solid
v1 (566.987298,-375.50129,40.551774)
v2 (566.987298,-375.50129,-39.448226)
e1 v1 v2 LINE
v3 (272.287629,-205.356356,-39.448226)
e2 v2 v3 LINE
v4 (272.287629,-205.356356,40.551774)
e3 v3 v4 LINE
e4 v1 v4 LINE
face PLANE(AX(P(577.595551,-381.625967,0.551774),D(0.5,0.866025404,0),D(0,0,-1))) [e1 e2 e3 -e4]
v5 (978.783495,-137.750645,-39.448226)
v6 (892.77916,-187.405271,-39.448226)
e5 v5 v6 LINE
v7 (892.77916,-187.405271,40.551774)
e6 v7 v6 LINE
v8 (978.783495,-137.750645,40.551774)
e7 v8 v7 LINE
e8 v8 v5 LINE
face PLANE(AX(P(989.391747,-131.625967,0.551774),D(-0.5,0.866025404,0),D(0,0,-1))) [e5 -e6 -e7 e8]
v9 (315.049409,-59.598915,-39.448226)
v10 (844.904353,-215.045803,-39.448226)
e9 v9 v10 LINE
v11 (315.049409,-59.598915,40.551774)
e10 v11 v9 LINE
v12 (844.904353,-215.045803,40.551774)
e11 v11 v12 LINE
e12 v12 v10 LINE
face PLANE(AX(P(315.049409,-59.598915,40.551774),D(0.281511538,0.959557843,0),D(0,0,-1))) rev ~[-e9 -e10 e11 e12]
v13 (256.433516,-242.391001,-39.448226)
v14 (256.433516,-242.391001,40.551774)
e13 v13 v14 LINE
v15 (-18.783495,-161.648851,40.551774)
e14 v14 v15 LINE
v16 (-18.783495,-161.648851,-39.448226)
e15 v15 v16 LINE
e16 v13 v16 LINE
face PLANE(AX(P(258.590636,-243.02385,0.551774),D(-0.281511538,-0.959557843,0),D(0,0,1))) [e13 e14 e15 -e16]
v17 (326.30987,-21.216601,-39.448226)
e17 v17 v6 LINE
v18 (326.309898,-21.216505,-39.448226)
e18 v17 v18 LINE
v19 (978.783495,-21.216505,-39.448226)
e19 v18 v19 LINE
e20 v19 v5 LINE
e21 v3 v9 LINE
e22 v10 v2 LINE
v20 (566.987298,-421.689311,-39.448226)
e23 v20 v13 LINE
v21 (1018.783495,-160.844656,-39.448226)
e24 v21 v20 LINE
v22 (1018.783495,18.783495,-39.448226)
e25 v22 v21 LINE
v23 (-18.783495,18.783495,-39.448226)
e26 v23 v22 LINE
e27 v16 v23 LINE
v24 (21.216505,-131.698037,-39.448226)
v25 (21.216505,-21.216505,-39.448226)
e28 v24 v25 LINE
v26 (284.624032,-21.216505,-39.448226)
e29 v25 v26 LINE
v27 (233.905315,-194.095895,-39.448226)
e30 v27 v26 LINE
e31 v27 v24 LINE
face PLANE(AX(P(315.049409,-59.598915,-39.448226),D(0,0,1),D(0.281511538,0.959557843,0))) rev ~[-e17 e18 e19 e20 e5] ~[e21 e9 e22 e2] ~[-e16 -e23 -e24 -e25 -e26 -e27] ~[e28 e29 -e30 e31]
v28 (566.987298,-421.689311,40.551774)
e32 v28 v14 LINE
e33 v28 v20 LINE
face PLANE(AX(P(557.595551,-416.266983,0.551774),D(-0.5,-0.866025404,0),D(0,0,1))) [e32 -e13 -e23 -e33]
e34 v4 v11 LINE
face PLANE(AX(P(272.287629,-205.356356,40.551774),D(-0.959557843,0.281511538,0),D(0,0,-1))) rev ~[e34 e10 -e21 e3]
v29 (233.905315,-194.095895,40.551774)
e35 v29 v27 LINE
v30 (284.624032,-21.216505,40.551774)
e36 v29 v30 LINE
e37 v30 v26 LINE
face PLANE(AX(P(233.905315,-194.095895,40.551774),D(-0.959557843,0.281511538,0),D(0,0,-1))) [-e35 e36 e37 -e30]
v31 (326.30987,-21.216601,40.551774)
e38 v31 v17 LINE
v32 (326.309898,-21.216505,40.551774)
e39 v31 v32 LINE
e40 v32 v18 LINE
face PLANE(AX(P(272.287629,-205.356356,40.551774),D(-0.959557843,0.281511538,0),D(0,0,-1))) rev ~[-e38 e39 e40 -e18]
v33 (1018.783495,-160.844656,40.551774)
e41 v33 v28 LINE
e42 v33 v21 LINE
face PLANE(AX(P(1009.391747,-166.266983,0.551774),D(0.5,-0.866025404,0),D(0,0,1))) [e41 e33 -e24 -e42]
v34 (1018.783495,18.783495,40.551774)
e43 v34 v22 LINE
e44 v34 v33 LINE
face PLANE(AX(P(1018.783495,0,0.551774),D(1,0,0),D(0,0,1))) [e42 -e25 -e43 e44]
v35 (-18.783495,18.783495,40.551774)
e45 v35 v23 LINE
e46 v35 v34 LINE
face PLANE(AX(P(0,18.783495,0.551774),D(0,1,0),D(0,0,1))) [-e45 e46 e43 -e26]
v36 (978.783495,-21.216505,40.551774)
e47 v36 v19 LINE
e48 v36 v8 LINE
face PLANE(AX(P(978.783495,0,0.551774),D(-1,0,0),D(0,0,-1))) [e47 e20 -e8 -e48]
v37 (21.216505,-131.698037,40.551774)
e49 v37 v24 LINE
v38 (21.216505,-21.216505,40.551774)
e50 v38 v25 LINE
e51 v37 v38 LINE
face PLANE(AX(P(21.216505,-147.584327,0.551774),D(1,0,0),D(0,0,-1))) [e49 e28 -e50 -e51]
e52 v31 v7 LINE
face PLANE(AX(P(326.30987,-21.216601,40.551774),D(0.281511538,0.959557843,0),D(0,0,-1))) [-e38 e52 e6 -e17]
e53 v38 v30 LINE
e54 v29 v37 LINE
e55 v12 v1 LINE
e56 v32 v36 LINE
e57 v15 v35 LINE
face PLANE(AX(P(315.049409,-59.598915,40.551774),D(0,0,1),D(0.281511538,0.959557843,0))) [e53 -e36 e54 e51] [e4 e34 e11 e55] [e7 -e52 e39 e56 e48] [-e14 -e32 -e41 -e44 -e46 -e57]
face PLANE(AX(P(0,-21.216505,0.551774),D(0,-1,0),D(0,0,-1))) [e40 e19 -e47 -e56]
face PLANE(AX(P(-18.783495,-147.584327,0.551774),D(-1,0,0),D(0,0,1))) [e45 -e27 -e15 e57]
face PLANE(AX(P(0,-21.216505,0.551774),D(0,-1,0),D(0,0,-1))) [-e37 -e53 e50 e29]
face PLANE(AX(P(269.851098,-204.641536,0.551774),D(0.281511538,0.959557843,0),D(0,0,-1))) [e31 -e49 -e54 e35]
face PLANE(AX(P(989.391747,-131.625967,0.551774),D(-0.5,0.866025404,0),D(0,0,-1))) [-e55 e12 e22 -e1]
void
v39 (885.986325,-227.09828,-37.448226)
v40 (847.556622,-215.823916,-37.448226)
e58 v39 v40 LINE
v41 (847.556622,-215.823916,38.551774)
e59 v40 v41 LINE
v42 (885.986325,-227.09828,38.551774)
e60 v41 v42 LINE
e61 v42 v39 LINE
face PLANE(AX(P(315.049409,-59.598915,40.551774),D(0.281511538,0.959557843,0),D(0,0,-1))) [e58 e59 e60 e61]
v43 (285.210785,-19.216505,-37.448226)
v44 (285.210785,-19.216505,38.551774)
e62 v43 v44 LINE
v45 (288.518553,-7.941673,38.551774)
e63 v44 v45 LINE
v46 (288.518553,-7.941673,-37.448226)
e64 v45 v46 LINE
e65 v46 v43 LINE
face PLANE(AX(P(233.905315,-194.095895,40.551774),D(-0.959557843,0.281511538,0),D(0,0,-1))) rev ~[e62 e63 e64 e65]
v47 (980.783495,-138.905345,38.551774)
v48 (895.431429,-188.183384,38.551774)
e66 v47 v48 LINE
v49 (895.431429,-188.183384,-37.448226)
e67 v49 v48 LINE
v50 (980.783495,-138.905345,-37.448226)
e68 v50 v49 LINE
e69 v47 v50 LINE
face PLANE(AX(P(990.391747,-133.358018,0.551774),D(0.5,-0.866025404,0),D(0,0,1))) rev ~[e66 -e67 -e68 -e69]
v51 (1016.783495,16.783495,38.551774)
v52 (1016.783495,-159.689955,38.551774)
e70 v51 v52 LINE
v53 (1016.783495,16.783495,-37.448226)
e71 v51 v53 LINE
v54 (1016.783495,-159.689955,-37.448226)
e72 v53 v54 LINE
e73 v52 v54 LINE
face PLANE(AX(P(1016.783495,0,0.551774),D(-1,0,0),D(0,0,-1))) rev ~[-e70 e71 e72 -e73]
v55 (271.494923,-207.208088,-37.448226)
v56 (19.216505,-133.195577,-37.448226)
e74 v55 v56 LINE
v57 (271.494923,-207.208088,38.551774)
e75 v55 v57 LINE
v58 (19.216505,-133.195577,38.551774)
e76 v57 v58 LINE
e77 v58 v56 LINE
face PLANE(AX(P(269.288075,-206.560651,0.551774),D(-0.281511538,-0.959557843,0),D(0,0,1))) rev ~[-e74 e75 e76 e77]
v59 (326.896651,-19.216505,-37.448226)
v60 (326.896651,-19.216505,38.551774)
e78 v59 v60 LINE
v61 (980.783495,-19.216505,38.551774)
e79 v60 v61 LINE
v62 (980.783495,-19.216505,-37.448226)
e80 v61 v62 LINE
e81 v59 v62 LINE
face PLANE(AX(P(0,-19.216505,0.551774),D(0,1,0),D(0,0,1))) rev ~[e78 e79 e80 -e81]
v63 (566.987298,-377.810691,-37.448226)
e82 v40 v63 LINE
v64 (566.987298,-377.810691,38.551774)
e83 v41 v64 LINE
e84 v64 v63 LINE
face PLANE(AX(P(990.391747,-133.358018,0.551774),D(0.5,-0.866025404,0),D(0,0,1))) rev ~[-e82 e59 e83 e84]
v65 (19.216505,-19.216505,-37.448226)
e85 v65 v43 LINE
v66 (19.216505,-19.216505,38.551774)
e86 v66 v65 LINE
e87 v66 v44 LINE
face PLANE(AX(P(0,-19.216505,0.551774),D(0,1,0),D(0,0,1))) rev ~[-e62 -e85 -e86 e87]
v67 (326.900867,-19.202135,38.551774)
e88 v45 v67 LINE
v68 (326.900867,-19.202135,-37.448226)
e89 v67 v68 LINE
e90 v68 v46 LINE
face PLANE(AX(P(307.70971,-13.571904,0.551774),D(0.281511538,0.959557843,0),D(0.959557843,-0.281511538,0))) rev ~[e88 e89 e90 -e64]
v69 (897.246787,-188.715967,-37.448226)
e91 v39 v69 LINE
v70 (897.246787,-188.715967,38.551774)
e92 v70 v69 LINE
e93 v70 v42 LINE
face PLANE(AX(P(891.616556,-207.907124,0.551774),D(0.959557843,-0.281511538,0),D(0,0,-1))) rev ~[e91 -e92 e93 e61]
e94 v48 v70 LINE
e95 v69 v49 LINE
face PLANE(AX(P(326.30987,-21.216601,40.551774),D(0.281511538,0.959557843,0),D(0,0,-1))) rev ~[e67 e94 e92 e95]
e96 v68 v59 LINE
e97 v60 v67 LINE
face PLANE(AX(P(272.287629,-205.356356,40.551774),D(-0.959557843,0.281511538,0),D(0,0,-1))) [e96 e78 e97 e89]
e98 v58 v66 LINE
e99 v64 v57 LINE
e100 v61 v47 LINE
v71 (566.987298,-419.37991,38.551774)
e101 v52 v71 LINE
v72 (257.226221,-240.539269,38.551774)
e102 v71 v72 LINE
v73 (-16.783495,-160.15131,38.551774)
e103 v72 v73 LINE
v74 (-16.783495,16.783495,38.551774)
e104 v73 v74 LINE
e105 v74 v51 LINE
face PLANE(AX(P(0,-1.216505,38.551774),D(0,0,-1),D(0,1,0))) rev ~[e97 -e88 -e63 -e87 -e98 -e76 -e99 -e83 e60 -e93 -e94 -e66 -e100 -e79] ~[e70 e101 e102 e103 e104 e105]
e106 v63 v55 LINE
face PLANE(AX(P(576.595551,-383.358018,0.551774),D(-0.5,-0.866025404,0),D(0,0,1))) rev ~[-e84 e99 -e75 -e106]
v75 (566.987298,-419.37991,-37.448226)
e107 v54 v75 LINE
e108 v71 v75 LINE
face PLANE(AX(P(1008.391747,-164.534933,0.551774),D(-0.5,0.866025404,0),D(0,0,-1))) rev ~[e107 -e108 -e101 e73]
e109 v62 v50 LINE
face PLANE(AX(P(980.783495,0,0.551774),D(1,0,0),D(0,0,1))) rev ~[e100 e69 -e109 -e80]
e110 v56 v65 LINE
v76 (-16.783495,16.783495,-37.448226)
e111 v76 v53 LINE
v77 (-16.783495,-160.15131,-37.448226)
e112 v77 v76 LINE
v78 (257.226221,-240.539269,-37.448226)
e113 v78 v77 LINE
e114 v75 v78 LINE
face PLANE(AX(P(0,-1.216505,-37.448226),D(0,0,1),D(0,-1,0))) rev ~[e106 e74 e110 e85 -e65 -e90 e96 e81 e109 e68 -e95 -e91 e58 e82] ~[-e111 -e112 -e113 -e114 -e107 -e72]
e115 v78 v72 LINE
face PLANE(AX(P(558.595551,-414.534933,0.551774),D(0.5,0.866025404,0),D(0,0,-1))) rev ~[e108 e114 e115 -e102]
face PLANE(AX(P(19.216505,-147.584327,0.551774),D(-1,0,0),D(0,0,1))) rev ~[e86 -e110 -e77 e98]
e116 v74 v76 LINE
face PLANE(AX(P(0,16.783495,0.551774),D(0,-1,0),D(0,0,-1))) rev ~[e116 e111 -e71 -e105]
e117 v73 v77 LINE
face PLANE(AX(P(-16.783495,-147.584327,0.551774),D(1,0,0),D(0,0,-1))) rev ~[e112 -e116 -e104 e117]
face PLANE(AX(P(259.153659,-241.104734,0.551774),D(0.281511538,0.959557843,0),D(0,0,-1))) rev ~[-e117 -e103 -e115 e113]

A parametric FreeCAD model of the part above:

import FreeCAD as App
import Part
import Sketcher
from FreeCAD import Vector
Q = App.Units.Quantity


def add_polygon(sketch, points):
    """Adds a closed chain of lines whose ends are joined by coincident constraints."""
    first, n = sketch.GeometryCount, len(points)
    for a, b in zip(points, points[1:] + points[:1]):
        sketch.addGeometry(Part.LineSegment(App.Vector(*a, 0), App.Vector(*b, 0)), False)
    for i in range(n):
        sketch.addConstraint(Sketcher.Constraint("Coincident", first + i, 2, first + (i + 1) % n, 1))

doc = App.newDocument("Part")
body = doc.addObject("PartDesign::Body", "Body")

# Sketch on YZ plane
sketch1 = doc.addObject("Sketcher::SketchObject", "Sketch")
body.addObject(sketch1)
sketch1.AttachmentSupport = (doc.YZ_Plane, [""])
sketch1.MapMode = "FlatFace"
add_polygon(sketch1, [(19, 41), (-21, 41), (-21, -39), (19, -39)])  # lines 0-3
add_polygon(sketch1, [(-19, -37), (-19, 39), (17, 39), (17, -37)])  # lines 4-7
sketch1.addConstraint(Sketcher.Constraint("Horizontal", 0))
sketch1.addConstraint(Sketcher.Constraint("Vertical", 1))
sketch1.addConstraint(Sketcher.Constraint("Horizontal", 2))
sketch1.addConstraint(Sketcher.Constraint("Vertical", 3))
sketch1.addConstraint(Sketcher.Constraint("Vertical", 4))
sketch1.addConstraint(Sketcher.Constraint("Horizontal", 5))
sketch1.addConstraint(Sketcher.Constraint("Vertical", 6))
sketch1.addConstraint(Sketcher.Constraint("Horizontal", 7))
sketch1.addConstraint(Sketcher.Constraint("DistanceX", 0, 2, 0, 1, Q("40 mm")))
sketch1.addConstraint(Sketcher.Constraint("DistanceX", 5, 1, 5, 2, Q("36 mm")))
sketch1.addConstraint(Sketcher.Constraint("DistanceY", 1, 2, 1, 1, Q("80 mm")))
sketch1.addConstraint(Sketcher.Constraint("DistanceY", 4, 1, 4, 2, Q("76 mm")))
sketch1.addConstraint(Sketcher.Constraint("DistanceX", 0, 2, 4, 2, Q("2 mm")))
sketch1.addConstraint(Sketcher.Constraint("DistanceY", 4, 2, 0, 2, Q("2 mm")))
sketch1.addConstraint(Sketcher.Constraint("DistanceX", 0, 2, -1, 1, Q("21.216505 mm")))
sketch1.addConstraint(Sketcher.Constraint("DistanceY", -1, 1, 0, 2, Q("40.551774 mm")))

# Sketch on XY plane
sketch2 = doc.addObject("Sketcher::SketchObject", "Sketch001")
body.addObject(sketch2)
sketch2.AttachmentSupport = (doc.XY_Plane, [""])
sketch2.MapMode = "FlatFace"
add_polygon(sketch2, [(0, 0), (1000, 0), (1000, -150), (567, -400), (264, -225), (0, -148)])  # lines 0-5
sketch2.addConstraint(Sketcher.Constraint("Horizontal", 0))
sketch2.addConstraint(Sketcher.Constraint("Vertical", 1))
sketch2.addConstraint(Sketcher.Constraint("Vertical", 5))
sketch2.addConstraint(Sketcher.Constraint("Coincident", 5, 2, -1, 1))
sketch2.addConstraint(Sketcher.Constraint("DistanceX", 0, 1, 0, 2, Q("1000 mm")))
sketch2.addConstraint(Sketcher.Constraint("DistanceY", 1, 2, 1, 1, Q("150 mm")))
sketch2.addConstraint(Sketcher.Constraint("Angle", 2, Q("-150 deg")))
sketch2.addConstraint(Sketcher.Constraint("Angle", 3, Q("150 deg")))
sketch2.addConstraint(Sketcher.Constraint("Distance", 2, Q("500 mm")))
sketch2.addConstraint(Sketcher.Constraint("Distance", 3, Q("350 mm")))
sketch2.addConstraint(Sketcher.Constraint("Distance", 4, Q("275 mm")))
doc.recompute()

additivepipe = doc.addObject("PartDesign::AdditivePipe", "AdditivePipe")
body.addObject(additivepipe)
additivepipe.Profile = sketch1
additivepipe.Spine = (sketch2, ["Edge1", "Edge2", "Edge3", "Edge4", "Edge5", "Edge6"])
additivepipe.Transition = "Right corner"

# Sketch on an angled plane
sketch3 = doc.addObject("Sketcher::SketchObject", "Sketch002")
body.addObject(sketch3)
sketch3.Placement = App.Placement(Vector(-33.893762, -115.52999, 0), App.Rotation(Vector(0.959557843, -0.281511538, 0), Vector(0, 0, -1), Vector(0.281511538, 0.959557843, 0), "ZXY"))
add_polygon(sketch3, [(279, 39), (279, -41), (319, -41), (319, 39)])  # lines 0-3
sketch3.addConstraint(Sketcher.Constraint("Vertical", 0))
sketch3.addConstraint(Sketcher.Constraint("Horizontal", 1))
sketch3.addConstraint(Sketcher.Constraint("Vertical", 2))
sketch3.addConstraint(Sketcher.Constraint("Horizontal", 3))
sketch3.addConstraint(Sketcher.Constraint("DistanceX", 1, 1, 1, 2, Q("40 mm")))
sketch3.addConstraint(Sketcher.Constraint("DistanceY", 0, 2, 0, 1, Q("80 mm")))
sketch3.addConstraint(Sketcher.Constraint("DistanceX", -1, 1, 0, 2, Q("279.085913 mm")))
sketch3.addConstraint(Sketcher.Constraint("DistanceY", 0, 2, -1, 1, Q("40.551774 mm")))
pad1 = doc.addObject("PartDesign::Pad", "Pad")
body.addObject(pad1)
pad1.Profile = sketch3
pad1.Length = 194

# Sketch on an angled plane
sketch4 = doc.addObject("Sketcher::SketchObject", "Sketch003")
body.addObject(sketch4)
sketch4.Placement = App.Placement(Vector(306.181391, -89.826366, 0), App.Rotation(Vector(0, 0, -1), Vector(0.281511538, 0.959557843, 0), Vector(0.959557843, -0.281511538, 0), "ZXY"))
add_polygon(sketch4, [(-41, 72), (-41, 32), (39, 32), (39, 72)])  # lines 0-3
sketch4.addConstraint(Sketcher.Constraint("Vertical", 0))
sketch4.addConstraint(Sketcher.Constraint("Horizontal", 1))
sketch4.addConstraint(Sketcher.Constraint("Vertical", 2))
sketch4.addConstraint(Sketcher.Constraint("Horizontal", 3))
sketch4.addConstraint(Sketcher.Constraint("DistanceX", 1, 1, 1, 2, Q("80 mm")))
sketch4.addConstraint(Sketcher.Constraint("DistanceY", 0, 2, 0, 1, Q("40 mm")))
sketch4.addConstraint(Sketcher.Constraint("DistanceX", 0, 2, -1, 1, Q("40.551774 mm")))
sketch4.addConstraint(Sketcher.Constraint("DistanceY", -1, 1, 0, 2, Q("31.501437 mm")))
pad2 = doc.addObject("PartDesign::Pad", "Pad001")
body.addObject(pad2)
pad2.Profile = sketch4
pad2.Length = 595

doc.recompute()
